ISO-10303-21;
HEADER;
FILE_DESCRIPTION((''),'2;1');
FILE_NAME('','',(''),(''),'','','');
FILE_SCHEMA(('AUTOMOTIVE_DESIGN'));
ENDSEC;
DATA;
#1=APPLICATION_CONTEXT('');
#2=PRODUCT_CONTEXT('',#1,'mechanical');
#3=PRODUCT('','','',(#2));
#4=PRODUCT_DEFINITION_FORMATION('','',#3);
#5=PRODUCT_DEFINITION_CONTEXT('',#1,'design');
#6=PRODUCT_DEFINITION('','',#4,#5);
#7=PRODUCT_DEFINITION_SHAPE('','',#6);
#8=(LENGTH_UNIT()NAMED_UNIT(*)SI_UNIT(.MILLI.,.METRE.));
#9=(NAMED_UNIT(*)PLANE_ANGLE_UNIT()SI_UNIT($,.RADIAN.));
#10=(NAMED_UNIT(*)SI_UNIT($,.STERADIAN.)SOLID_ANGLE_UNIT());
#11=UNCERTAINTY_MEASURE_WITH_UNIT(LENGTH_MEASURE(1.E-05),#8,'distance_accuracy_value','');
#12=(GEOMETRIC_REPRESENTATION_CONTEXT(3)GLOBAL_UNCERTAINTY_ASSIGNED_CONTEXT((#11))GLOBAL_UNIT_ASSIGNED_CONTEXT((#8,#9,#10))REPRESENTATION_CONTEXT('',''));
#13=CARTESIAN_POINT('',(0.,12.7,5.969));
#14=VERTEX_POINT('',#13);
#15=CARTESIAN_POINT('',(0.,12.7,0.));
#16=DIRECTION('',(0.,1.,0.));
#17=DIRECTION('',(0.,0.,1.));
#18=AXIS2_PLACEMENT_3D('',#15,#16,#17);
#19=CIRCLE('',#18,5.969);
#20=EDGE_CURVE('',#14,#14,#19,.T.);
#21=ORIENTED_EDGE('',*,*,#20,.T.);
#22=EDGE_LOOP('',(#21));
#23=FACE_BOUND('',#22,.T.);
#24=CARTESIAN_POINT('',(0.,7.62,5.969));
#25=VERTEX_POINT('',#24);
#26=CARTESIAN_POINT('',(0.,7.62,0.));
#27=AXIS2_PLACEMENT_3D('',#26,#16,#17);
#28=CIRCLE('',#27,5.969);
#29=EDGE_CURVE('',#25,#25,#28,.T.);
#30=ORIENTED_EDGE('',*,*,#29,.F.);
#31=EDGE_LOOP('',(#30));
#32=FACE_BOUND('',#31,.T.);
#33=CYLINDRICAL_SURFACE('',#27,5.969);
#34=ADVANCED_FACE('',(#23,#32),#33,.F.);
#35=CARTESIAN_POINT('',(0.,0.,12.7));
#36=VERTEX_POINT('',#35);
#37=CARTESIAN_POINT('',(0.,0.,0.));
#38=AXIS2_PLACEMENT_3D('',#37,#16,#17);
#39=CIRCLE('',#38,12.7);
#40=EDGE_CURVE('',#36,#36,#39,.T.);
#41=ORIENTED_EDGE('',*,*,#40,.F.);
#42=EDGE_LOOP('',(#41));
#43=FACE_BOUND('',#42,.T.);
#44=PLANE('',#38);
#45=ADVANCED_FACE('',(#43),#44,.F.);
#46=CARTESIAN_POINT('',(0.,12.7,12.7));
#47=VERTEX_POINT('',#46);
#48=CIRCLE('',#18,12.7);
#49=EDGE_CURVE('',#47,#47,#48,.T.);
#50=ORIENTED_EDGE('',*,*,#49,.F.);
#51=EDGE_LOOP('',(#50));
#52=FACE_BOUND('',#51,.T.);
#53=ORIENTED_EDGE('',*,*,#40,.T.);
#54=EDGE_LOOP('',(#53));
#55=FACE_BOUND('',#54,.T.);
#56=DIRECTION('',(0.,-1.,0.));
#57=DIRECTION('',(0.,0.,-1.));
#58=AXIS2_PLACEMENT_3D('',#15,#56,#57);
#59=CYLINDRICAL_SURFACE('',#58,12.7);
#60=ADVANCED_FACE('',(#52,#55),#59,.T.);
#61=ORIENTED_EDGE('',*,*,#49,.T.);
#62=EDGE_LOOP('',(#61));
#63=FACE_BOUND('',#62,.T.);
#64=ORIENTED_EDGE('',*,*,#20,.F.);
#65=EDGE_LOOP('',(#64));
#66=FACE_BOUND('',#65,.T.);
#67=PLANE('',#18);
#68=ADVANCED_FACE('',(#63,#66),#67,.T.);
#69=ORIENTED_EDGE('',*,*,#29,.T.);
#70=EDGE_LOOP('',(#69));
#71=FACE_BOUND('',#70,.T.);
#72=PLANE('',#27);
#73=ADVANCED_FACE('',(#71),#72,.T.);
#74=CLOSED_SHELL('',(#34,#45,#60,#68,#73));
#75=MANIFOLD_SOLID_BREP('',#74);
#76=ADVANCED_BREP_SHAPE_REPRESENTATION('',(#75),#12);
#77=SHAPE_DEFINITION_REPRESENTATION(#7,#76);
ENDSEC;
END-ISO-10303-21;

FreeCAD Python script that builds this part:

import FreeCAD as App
import Part
import Sketcher
Q = App.Units.Quantity

doc = App.newDocument("Part")
body = doc.addObject("PartDesign::Body", "Body")

# Sketch on XZ plane
sketch1 = body.newObject("Sketcher::SketchObject", "Sketch")
sketch1.AttachmentSupport = (doc.getObject("XZ_Plane"), [""])
sketch1.MapMode = "FlatFace"
sketch1.addGeometry(Part.Circle(App.Vector(0, 0, 0), App.Vector(0, 0, 1), 13), False)
sketch1.addConstraint([
    Sketcher.Constraint("Coincident", 0, 3, -1, 1),
    Sketcher.Constraint("Diameter", 0, Q("1 in")),
])
pad1 = body.newObject("PartDesign::Pad", "Pad")
pad1.Profile = sketch1
pad1.Length = Q("0.5 in")
pad1.Reversed = True

# Sketch on XZ plane
sketch2 = body.newObject("Sketcher::SketchObject", "Sketch001")
sketch2.AttachmentSupport = (doc.getObject("XZ_Plane"), [""])
sketch2.MapMode = "FlatFace"
sketch2.AttachmentOffset = App.Placement(App.Vector(0, 0, -0.5 * 25.4), App.Rotation())
sketch2.addGeometry(Part.Circle(App.Vector(0, 0, 0), App.Vector(0, 0, 1), 6), False)
sketch2.addConstraint([
    Sketcher.Constraint("Coincident", 0, 3, -1, 1),
    Sketcher.Constraint("Diameter", 0, Q("0.47 in")),
])
pocket1 = body.newObject("PartDesign::Pocket", "Pocket")
pocket1.Profile = sketch2
pocket1.Length = Q("0.2 in")
pocket1.Reversed = True

doc.recompute()
